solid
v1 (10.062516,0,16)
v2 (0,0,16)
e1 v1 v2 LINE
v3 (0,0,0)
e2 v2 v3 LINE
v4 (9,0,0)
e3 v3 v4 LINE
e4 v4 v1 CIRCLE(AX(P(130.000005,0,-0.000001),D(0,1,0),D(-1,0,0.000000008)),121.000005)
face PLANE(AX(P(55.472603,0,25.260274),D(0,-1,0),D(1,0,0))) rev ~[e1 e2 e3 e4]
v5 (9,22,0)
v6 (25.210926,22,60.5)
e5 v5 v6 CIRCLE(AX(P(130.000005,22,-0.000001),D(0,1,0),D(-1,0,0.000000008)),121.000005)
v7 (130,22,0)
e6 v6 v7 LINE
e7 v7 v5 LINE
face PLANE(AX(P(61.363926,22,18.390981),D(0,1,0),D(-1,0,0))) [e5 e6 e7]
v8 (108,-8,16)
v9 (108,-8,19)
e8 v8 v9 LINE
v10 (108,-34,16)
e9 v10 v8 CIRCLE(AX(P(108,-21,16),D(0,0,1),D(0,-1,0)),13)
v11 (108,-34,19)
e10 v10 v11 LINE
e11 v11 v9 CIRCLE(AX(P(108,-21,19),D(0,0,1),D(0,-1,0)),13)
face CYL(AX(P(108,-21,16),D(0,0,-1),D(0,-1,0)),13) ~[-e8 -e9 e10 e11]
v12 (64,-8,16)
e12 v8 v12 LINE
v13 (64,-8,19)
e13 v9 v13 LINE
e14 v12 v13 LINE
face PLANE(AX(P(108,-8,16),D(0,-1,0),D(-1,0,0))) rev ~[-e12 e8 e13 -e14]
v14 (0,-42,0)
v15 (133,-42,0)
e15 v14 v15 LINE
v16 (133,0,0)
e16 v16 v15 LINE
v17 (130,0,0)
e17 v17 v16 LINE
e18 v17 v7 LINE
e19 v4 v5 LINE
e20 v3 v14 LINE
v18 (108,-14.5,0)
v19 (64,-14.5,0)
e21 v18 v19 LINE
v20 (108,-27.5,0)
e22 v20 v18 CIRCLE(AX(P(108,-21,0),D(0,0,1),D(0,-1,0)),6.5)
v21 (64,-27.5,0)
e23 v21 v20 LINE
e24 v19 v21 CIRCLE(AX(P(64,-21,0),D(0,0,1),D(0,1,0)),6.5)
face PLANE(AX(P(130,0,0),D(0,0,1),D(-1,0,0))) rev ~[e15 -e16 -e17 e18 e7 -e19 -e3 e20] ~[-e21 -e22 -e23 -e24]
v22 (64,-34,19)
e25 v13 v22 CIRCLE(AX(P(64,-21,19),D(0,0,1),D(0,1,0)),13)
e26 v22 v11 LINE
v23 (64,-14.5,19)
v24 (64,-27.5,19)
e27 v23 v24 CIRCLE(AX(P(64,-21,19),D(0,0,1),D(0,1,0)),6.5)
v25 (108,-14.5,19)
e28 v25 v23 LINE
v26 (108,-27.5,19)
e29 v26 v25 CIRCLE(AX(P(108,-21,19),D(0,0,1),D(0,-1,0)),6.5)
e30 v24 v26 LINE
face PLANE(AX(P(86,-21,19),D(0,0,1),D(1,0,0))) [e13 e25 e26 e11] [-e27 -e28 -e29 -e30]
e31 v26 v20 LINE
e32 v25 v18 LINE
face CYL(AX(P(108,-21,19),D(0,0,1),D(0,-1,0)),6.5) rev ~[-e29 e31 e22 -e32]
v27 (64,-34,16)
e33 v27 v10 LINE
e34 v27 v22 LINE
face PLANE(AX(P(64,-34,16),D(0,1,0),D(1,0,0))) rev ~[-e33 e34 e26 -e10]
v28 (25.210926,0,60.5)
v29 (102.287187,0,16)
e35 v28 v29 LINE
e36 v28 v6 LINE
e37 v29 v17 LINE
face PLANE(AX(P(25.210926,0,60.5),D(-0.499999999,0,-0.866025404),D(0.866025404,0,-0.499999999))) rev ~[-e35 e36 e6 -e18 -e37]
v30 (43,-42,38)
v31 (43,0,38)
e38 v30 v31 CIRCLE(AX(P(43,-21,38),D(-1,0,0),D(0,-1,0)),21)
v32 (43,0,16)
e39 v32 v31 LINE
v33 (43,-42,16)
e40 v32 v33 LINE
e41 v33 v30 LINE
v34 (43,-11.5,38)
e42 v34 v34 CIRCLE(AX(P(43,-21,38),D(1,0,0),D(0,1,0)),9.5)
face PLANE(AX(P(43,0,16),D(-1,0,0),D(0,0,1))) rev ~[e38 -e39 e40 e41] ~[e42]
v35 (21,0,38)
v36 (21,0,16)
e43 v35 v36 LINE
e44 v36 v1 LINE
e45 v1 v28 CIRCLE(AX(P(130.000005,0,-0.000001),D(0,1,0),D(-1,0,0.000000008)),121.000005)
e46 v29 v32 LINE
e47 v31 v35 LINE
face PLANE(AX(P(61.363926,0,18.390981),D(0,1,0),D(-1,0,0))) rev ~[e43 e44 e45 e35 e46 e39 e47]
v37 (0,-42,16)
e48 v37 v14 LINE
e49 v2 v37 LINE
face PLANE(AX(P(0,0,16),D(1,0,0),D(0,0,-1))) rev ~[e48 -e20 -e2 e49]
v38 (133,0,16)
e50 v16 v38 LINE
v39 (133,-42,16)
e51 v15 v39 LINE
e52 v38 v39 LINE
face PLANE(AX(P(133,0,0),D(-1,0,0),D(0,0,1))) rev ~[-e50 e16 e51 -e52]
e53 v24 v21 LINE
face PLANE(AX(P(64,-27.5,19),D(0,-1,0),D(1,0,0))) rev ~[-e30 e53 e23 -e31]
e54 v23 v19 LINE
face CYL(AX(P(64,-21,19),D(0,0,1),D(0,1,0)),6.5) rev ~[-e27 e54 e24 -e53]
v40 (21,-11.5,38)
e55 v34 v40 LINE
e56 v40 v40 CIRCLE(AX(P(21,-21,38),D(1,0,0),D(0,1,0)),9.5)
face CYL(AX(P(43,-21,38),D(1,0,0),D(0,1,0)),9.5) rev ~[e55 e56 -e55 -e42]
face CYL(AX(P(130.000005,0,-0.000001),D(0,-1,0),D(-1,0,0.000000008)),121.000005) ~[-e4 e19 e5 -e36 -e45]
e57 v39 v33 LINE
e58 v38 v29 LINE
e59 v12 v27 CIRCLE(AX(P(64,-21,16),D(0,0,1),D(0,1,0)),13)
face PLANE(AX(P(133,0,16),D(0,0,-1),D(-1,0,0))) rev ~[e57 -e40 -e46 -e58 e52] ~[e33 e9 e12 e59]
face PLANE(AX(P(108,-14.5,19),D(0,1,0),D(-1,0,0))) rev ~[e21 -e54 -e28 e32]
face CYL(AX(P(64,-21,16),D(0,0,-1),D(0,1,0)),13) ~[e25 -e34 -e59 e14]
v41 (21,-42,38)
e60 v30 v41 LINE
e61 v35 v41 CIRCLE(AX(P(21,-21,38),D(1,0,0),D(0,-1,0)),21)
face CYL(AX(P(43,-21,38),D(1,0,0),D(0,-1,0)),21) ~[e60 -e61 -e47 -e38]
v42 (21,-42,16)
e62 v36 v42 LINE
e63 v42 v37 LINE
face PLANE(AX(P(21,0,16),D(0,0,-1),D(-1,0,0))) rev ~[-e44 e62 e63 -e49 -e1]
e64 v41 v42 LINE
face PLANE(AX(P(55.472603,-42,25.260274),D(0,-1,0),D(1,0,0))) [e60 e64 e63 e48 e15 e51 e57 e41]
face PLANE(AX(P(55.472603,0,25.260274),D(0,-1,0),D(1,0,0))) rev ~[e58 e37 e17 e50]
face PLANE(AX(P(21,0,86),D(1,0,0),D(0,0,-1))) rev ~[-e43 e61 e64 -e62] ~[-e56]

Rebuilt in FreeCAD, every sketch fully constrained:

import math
import FreeCAD as App
import Part
import Sketcher

V = App.Vector
Q = App.Units.Quantity

doc = App.newDocument("Part")
body = doc.addObject("PartDesign::Body", "Body")

# Sketch on XZ plane
sketch1 = doc.addObject("Sketcher::SketchObject", "Sketch")
body.addObject(sketch1)
sketch1.AttachmentSupport = (doc.XZ_Plane, [""])
sketch1.MapMode = "FlatFace"
sketch1.addGeometry(Part.LineSegment(V(0, 16, 0), V(0, 0, 0)), False)
sketch1.addGeometry(Part.LineSegment(V(0, 0, 0), V(133, 0, 0)), False)
sketch1.addGeometry(Part.LineSegment(V(133, 0, 0), V(133, 16, 0)), False)
sketch1.addGeometry(Part.LineSegment(V(133, 16, 0), V(43, 16, 0)), False)
sketch1.addGeometry(Part.LineSegment(V(43, 16, 0), V(43, 86, 0)), False)
sketch1.addGeometry(Part.LineSegment(V(43, 86, 0), V(21, 86, 0)), False)
sketch1.addGeometry(Part.LineSegment(V(21, 86, 0), V(21, 16, 0)), False)
sketch1.addGeometry(Part.LineSegment(V(21, 16, 0), V(0, 16, 0)), False)
sketch1.addConstraint(Sketcher.Constraint("Coincident", 0, 2, 1, 1))
sketch1.addConstraint(Sketcher.Constraint("Coincident", 1, 2, 2, 1))
sketch1.addConstraint(Sketcher.Constraint("Coincident", 2, 2, 3, 1))
sketch1.addConstraint(Sketcher.Constraint("Coincident", 3, 2, 4, 1))
sketch1.addConstraint(Sketcher.Constraint("Coincident", 4, 2, 5, 1))
sketch1.addConstraint(Sketcher.Constraint("Coincident", 5, 2, 6, 1))
sketch1.addConstraint(Sketcher.Constraint("Coincident", 6, 2, 7, 1))
sketch1.addConstraint(Sketcher.Constraint("Coincident", 7, 2, 0, 1))
sketch1.addConstraint(Sketcher.Constraint("Vertical", 0))
sketch1.addConstraint(Sketcher.Constraint("Horizontal", 1))
sketch1.addConstraint(Sketcher.Constraint("Vertical", 2))
sketch1.addConstraint(Sketcher.Constraint("Horizontal", 3))
sketch1.addConstraint(Sketcher.Constraint("Vertical", 4))
sketch1.addConstraint(Sketcher.Constraint("Horizontal", 5))
sketch1.addConstraint(Sketcher.Constraint("Vertical", 6))
sketch1.addConstraint(Sketcher.Constraint("Horizontal", 7))
sketch1.addConstraint(Sketcher.Constraint("Coincident", 0, 2, -1, 1))
sketch1.addConstraint(Sketcher.Constraint("Horizontal", 3, 2, 6, 2))
sketch1.addConstraint(Sketcher.Constraint("DistanceX", 1, 1, 1, 2, Q("133 mm")))
sketch1.addConstraint(Sketcher.Constraint("DistanceX", 3, 2, 3, 1, Q("90 mm")))
sketch1.addConstraint(Sketcher.Constraint("DistanceX", 5, 2, 5, 1, Q("22 mm")))
sketch1.addConstraint(Sketcher.Constraint("DistanceY", 0, 2, 0, 1, Q("16 mm")))
sketch1.addConstraint(Sketcher.Constraint("DistanceY", 4, 1, 4, 2, Q("70 mm")))
pad1 = doc.addObject("PartDesign::Pad", "Pad")
body.addObject(pad1)
pad1.Profile = sketch1
pad1.Length = 42

# Sketch on YZ plane
sketch2 = doc.addObject("Sketcher::SketchObject", "Sketch001")
body.addObject(sketch2)
sketch2.AttachmentSupport = (doc.YZ_Plane, [""])
sketch2.MapMode = "FlatFace"
sketch2.AttachmentOffset = App.Placement(V(0, 0, 43), App.Rotation())
sketch2.addGeometry(Part.Circle(V(-21, 38, 0), V(0, 0, 1), 10), False)
sketch2.addGeometry(Part.LineSegment(V(-42, 86, 0), V(-42, 38, 0)), False)
sketch2.addGeometry(Part.ArcOfCircle(Part.Circle(V(-21, 38, 0), V(0, 0, 1), 21), math.radians(0), math.radians(180)), False)
sketch2.addGeometry(Part.LineSegment(V(0, 38, 0), V(0, 86, 0)), False)
sketch2.addGeometry(Part.LineSegment(V(0, 86, 0), V(-42, 86, 0)), False)
sketch2.addConstraint(Sketcher.Constraint("Tangent", 1, 2, 2, 2))
sketch2.addConstraint(Sketcher.Constraint("Tangent", 2, 1, 3, 1))
sketch2.addConstraint(Sketcher.Constraint("Coincident", 3, 2, 4, 1))
sketch2.addConstraint(Sketcher.Constraint("Coincident", 4, 2, 1, 1))
sketch2.addConstraint(Sketcher.Constraint("Vertical", 1))
sketch2.addConstraint(Sketcher.Constraint("Vertical", 3))
sketch2.addConstraint(Sketcher.Constraint("Horizontal", 4))
sketch2.addConstraint(Sketcher.Constraint("Coincident", 2, 3, 0, 3))
sketch2.addConstraint(Sketcher.Constraint("PointOnObject", 2, 1, -2))
sketch2.addConstraint(Sketcher.Constraint("Diameter", 0, Q("19 mm")))
sketch2.addConstraint(Sketcher.Constraint("Radius", 2, Q("21 mm")))
sketch2.addConstraint(Sketcher.Constraint("DistanceY", 1, 2, 1, 1, Q("48 mm")))
sketch2.addConstraint(Sketcher.Constraint("DistanceY", -1, 1, 0, 3, Q("38 mm")))
pocket1 = doc.addObject("PartDesign::Pocket", "Pocket")
body.addObject(pocket1)
pocket1.Profile = sketch2
pocket1.Type = "ThroughAll"

# Sketch on XY plane
sketch3 = doc.addObject("Sketcher::SketchObject", "Sketch002")
body.addObject(sketch3)
sketch3.AttachmentSupport = (doc.XY_Plane, [""])
sketch3.MapMode = "FlatFace"
sketch3.AttachmentOffset = App.Placement(V(0, 0, 16), App.Rotation())
sketch3.addGeometry(Part.LineSegment(V(108, -8, 0), V(64, -8, 0)), False)
sketch3.addGeometry(Part.ArcOfCircle(Part.Circle(V(64, -21, 0), V(0, 0, 1), 13), math.radians(90), math.radians(270)), False)
sketch3.addGeometry(Part.LineSegment(V(64, -34, 0), V(108, -34, 0)), False)
sketch3.addGeometry(Part.ArcOfCircle(Part.Circle(V(108, -21, 0), V(0, 0, 1), 13), math.radians(-90), math.radians(90)), False)
sketch3.addConstraint(Sketcher.Constraint("Tangent", 0, 2, 1, 1))
sketch3.addConstraint(Sketcher.Constraint("Tangent", 1, 2, 2, 1))
sketch3.addConstraint(Sketcher.Constraint("Tangent", 2, 2, 3, 1))
sketch3.addConstraint(Sketcher.Constraint("Tangent", 3, 2, 0, 1))
sketch3.addConstraint(Sketcher.Constraint("Horizontal", 0))
sketch3.addConstraint(Sketcher.Constraint("Horizontal", 2))
sketch3.addConstraint(Sketcher.Constraint("Radius", 1, Q("13 mm")))
sketch3.addConstraint(Sketcher.Constraint("DistanceX", 0, 2, 0, 1, Q("44 mm")))
sketch3.addConstraint(Sketcher.Constraint("DistanceX", -1, 1, 1, 3, Q("64 mm")))
sketch3.addConstraint(Sketcher.Constraint("DistanceY", 1, 3, -1, 1, Q("21 mm")))
pad2 = doc.addObject("PartDesign::Pad", "Pad001")
body.addObject(pad2)
pad2.Profile = sketch3
pad2.Length = 3

# Sketch on XY plane
sketch4 = doc.addObject("Sketcher::SketchObject", "Sketch003")
body.addObject(sketch4)
sketch4.AttachmentSupport = (doc.XY_Plane, [""])
sketch4.MapMode = "FlatFace"
sketch4.AttachmentOffset = App.Placement(V(0, 0, 19), App.Rotation())
sketch4.addGeometry(Part.LineSegment(V(108, -14, 0), V(64, -14, 0)), False)
sketch4.addGeometry(Part.ArcOfCircle(Part.Circle(V(64, -21, 0), V(0, 0, 1), 6), math.radians(90), math.radians(270)), False)
sketch4.addGeometry(Part.LineSegment(V(64, -28, 0), V(108, -28, 0)), False)
sketch4.addGeometry(Part.ArcOfCircle(Part.Circle(V(108, -21, 0), V(0, 0, 1), 6), math.radians(-90), math.radians(90)), False)
sketch4.addConstraint(Sketcher.Constraint("Tangent", 0, 2, 1, 1))
sketch4.addConstraint(Sketcher.Constraint("Tangent", 1, 2, 2, 1))
sketch4.addConstraint(Sketcher.Constraint("Tangent", 2, 2, 3, 1))
sketch4.addConstraint(Sketcher.Constraint("Tangent", 3, 2, 0, 1))
sketch4.addConstraint(Sketcher.Constraint("Horizontal", 0))
sketch4.addConstraint(Sketcher.Constraint("Horizontal", 2))
sketch4.addConstraint(Sketcher.Constraint("Radius", 1, Q("6.5 mm")))
sketch4.addConstraint(Sketcher.Constraint("DistanceX", 0, 2, 0, 1, Q("44 mm")))
sketch4.addConstraint(Sketcher.Constraint("DistanceX", -1, 1, 1, 3, Q("64 mm")))
sketch4.addConstraint(Sketcher.Constraint("DistanceY", 1, 3, -1, 1, Q("21 mm")))
pocket2 = doc.addObject("PartDesign::Pocket", "Pocket001")
body.addObject(pocket2)
pocket2.Profile = sketch4
pocket2.Type = "ThroughAll"

# Sketch on XZ plane
sketch5 = doc.addObject("Sketcher::SketchObject", "Sketch004")
body.addObject(sketch5)
sketch5.AttachmentSupport = (doc.XZ_Plane, [""])
sketch5.MapMode = "FlatFace"
sketch5.addGeometry(Part.LineSegment(V(25, 60, 0), V(130, 0, 0)), False)
sketch5.addGeometry(Part.LineSegment(V(130, 0, 0), V(9, 0, 0)), False)
sketch5.addGeometry(Part.ArcOfCircle(Part.Circle(V(130, 0, 0), V(0, 0, 1), 121), math.radians(150), math.radians(180)), False)
sketch5.addConstraint(Sketcher.Constraint("Coincident", 0, 2, 1, 1))
sketch5.addConstraint(Sketcher.Constraint("Coincident", 1, 2, 2, 2))
sketch5.addConstraint(Sketcher.Constraint("Coincident", 2, 1, 0, 1))
sketch5.addConstraint(Sketcher.Constraint("Horizontal", 1))
sketch5.addConstraint(Sketcher.Constraint("Coincident", 0, 2, 2, 3))
sketch5.addConstraint(Sketcher.Constraint("PointOnObject", 2, 3, -1))
sketch5.addConstraint(Sketcher.Constraint("DistanceX", 1, 2, 1, 1, Q("121 mm")))
sketch5.addConstraint(Sketcher.Constraint("Angle", 0, Q("-30 deg")))
sketch5.addConstraint(Sketcher.Constraint("DistanceX", -1, 1, 0, 2, Q("130 mm")))
pad3 = doc.addObject("PartDesign::Pad", "Pad002")
body.addObject(pad3)
pad3.Profile = sketch5
pad3.Length = 22
pad3.Reversed = True

doc.recompute()
